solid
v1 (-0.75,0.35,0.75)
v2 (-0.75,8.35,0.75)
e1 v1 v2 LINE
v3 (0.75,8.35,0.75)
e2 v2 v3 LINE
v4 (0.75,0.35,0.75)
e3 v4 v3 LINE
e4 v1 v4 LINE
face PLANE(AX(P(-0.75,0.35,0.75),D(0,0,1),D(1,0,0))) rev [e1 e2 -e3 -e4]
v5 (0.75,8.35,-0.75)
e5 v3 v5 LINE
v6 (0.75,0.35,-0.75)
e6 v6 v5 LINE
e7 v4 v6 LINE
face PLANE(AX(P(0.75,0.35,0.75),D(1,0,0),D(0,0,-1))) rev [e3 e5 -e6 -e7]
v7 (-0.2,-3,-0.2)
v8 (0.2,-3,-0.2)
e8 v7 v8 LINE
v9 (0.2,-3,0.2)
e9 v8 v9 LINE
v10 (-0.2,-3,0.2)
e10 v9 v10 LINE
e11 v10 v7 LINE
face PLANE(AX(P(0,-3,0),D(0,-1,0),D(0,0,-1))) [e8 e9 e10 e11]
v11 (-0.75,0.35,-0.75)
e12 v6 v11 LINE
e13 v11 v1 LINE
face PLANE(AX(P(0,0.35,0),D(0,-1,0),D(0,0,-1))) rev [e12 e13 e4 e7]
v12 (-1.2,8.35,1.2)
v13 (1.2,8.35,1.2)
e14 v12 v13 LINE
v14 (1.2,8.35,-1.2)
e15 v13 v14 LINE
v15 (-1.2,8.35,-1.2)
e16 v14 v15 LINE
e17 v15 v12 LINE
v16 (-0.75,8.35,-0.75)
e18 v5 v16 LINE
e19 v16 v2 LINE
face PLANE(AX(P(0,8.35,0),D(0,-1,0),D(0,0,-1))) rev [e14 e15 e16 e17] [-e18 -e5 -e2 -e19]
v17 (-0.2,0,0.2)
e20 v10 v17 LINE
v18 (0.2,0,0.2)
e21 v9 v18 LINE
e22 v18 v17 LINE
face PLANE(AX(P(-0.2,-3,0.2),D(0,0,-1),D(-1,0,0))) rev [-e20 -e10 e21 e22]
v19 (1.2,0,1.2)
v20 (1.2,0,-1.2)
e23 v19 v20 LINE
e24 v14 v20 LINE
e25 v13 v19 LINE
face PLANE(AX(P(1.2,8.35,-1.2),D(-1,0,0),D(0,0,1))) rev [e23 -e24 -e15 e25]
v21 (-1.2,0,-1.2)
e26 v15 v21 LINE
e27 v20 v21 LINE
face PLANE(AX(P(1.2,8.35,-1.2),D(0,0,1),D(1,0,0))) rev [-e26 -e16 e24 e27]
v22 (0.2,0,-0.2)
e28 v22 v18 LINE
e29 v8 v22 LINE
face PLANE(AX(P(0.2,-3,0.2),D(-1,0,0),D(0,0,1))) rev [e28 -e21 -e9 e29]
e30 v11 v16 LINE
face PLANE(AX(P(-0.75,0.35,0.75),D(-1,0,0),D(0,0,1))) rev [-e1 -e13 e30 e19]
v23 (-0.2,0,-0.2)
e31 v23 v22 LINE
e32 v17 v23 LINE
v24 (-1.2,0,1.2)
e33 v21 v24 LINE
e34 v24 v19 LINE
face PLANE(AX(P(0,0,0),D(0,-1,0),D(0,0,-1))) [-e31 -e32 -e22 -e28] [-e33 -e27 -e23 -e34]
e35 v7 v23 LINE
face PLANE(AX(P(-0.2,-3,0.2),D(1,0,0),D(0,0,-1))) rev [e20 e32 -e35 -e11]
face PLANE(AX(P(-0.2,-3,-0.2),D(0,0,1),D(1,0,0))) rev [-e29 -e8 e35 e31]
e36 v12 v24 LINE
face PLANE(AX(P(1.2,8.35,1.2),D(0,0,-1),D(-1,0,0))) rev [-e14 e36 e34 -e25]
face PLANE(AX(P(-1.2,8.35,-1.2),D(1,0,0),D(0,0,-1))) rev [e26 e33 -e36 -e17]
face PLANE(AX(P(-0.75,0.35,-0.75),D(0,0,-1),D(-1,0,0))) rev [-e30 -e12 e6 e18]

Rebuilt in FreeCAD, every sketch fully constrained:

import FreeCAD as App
import Part
import Sketcher
from FreeCAD import Vector

doc = App.newDocument("Part")
body = doc.addObject("PartDesign::Body", "Body")

# Sketch on XZ plane
sketch1 = body.newObject("Sketcher::SketchObject", "Sketch")
sketch1.AttachmentSupport = (doc.getObject("XZ_Plane"), [""])
sketch1.MapMode = "FlatFace"
sketch1.addGeometry(Part.LineSegment(Vector(-1.2, -1.2, 0), Vector(-1.2, 1.2, 0)), False)
sketch1.addGeometry(Part.LineSegment(Vector(-1.2, 1.2, 0), Vector(1.2, 1.2, 0)), False)
sketch1.addGeometry(Part.LineSegment(Vector(1.2, 1.2, 0), Vector(1.2, -1.2, 0)), False)
sketch1.addGeometry(Part.LineSegment(Vector(1.2, -1.2, 0), Vector(-1.2, -1.2, 0)), False)
sketch1.addConstraint(Sketcher.Constraint("Coincident", 0, 2, 1, 1))
sketch1.addConstraint(Sketcher.Constraint("Coincident", 1, 2, 2, 1))
sketch1.addConstraint(Sketcher.Constraint("Coincident", 2, 2, 3, 1))
sketch1.addConstraint(Sketcher.Constraint("Coincident", 3, 2, 0, 1))
sketch1.addConstraint(Sketcher.Constraint("Vertical", 0))
sketch1.addConstraint(Sketcher.Constraint("Horizontal", 1))
sketch1.addConstraint(Sketcher.Constraint("Vertical", 2))
sketch1.addConstraint(Sketcher.Constraint("Horizontal", 3))
sketch1.addConstraint(Sketcher.Constraint("Symmetric", 0, 2, 2, 2, -1, 1))
sketch1.addConstraint(Sketcher.Constraint("Equal", 3, 0))
sketch1.addConstraint(Sketcher.Constraint("DistanceX", 1, 1, 1, 2, 2.4))
pad1 = body.newObject("PartDesign::Pad", "Pad")
pad1.Profile = sketch1
pad1.Length = 8.35
pad1.Reversed = True

# Sketch on XZ plane
sketch2 = body.newObject("Sketcher::SketchObject", "Sketch001")
sketch2.AttachmentSupport = (doc.getObject("XZ_Plane"), [""])
sketch2.MapMode = "FlatFace"
sketch2.AttachmentOffset = App.Placement(Vector(0, 0, -8.35), App.Rotation())
sketch2.addGeometry(Part.LineSegment(Vector(-0.8, -0.8, 0), Vector(-0.8, 0.8, 0)), False)
sketch2.addGeometry(Part.LineSegment(Vector(-0.8, 0.8, 0), Vector(0.8, 0.8, 0)), False)
sketch2.addGeometry(Part.LineSegment(Vector(0.8, 0.8, 0), Vector(0.8, -0.8, 0)), False)
sketch2.addGeometry(Part.LineSegment(Vector(0.8, -0.8, 0), Vector(-0.8, -0.8, 0)), False)
sketch2.addConstraint(Sketcher.Constraint("Coincident", 0, 2, 1, 1))
sketch2.addConstraint(Sketcher.Constraint("Coincident", 1, 2, 2, 1))
sketch2.addConstraint(Sketcher.Constraint("Coincident", 2, 2, 3, 1))
sketch2.addConstraint(Sketcher.Constraint("Coincident", 3, 2, 0, 1))
sketch2.addConstraint(Sketcher.Constraint("Vertical", 0))
sketch2.addConstraint(Sketcher.Constraint("Horizontal", 1))
sketch2.addConstraint(Sketcher.Constraint("Vertical", 2))
sketch2.addConstraint(Sketcher.Constraint("Horizontal", 3))
sketch2.addConstraint(Sketcher.Constraint("Symmetric", 0, 2, 2, 2, -1, 1))
sketch2.addConstraint(Sketcher.Constraint("Equal", 3, 0))
sketch2.addConstraint(Sketcher.Constraint("DistanceX", 1, 1, 1, 2, 1.5))
pocket1 = body.newObject("PartDesign::Pocket", "Pocket")
pocket1.Profile = sketch2
pocket1.Length = 8
pocket1.Reversed = True

# Sketch on XZ plane
sketch3 = body.newObject("Sketcher::SketchObject", "Sketch002")
sketch3.AttachmentSupport = (doc.getObject("XZ_Plane"), [""])
sketch3.MapMode = "FlatFace"
sketch3.addGeometry(Part.LineSegment(Vector(-0.2, 0.2, 0), Vector(-0.2, -0.2, 0)), False)
sketch3.addGeometry(Part.LineSegment(Vector(-0.2, -0.2, 0), Vector(0.2, -0.2, 0)), False)
sketch3.addGeometry(Part.LineSegment(Vector(0.2, -0.2, 0), Vector(0.2, 0.2, 0)), False)
sketch3.addGeometry(Part.LineSegment(Vector(0.2, 0.2, 0), Vector(-0.2, 0.2, 0)), False)
sketch3.addConstraint(Sketcher.Constraint("Coincident", 0, 2, 1, 1))
sketch3.addConstraint(Sketcher.Constraint("Coincident", 1, 2, 2, 1))
sketch3.addConstraint(Sketcher.Constraint("Coincident", 2, 2, 3, 1))
sketch3.addConstraint(Sketcher.Constraint("Coincident", 3, 2, 0, 1))
sketch3.addConstraint(Sketcher.Constraint("Vertical", 0))
sketch3.addConstraint(Sketcher.Constraint("Horizontal", 1))
sketch3.addConstraint(Sketcher.Constraint("Vertical", 2))
sketch3.addConstraint(Sketcher.Constraint("Horizontal", 3))
sketch3.addConstraint(Sketcher.Constraint("Symmetric", 0, 2, 2, 2, -1, 1))
sketch3.addConstraint(Sketcher.Constraint("Equal", 3, 0))
sketch3.addConstraint(Sketcher.Constraint("DistanceX", 1, 1, 1, 2, 0.4))
pad2 = body.newObject("PartDesign::Pad", "Pad001")
pad2.Profile = sketch3
pad2.Length = 3

doc.recompute()
